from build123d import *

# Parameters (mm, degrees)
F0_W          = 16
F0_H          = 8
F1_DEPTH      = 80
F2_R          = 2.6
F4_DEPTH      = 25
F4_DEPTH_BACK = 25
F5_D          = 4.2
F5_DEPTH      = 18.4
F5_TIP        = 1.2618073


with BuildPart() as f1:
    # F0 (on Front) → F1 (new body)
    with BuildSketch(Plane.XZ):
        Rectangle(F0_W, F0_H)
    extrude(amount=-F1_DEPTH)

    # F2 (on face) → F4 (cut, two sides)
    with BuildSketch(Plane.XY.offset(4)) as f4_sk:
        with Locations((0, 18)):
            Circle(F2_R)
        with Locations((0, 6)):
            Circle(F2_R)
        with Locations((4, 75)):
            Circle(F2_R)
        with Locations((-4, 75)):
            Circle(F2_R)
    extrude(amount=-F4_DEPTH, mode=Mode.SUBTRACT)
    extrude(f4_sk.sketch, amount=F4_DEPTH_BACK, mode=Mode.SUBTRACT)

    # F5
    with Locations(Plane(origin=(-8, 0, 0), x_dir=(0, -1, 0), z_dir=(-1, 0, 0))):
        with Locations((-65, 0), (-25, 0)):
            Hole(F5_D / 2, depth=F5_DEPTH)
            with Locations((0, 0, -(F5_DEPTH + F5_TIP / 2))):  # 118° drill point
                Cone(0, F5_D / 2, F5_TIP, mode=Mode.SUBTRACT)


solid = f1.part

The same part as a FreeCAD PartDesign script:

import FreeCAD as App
import Part
import Sketcher


def add_polygon(sketch, points):
    """Adds a closed chain of lines whose ends are joined by coincident constraints."""
    first, n = sketch.GeometryCount, len(points)
    for a, b in zip(points, points[1:] + points[:1]):
        sketch.addGeometry(Part.LineSegment(App.Vector(*a, 0), App.Vector(*b, 0)), False)
    for i in range(n):
        sketch.addConstraint(Sketcher.Constraint("Coincident", first + i, 2, first + (i + 1) % n, 1))

doc = App.newDocument("Part")
body = doc.addObject("PartDesign::Body", "Body")

# Sketch on XZ plane
sketch1 = body.newObject("Sketcher::SketchObject", "Sketch")
sketch1.AttachmentSupport = (doc.getObject("XZ_Plane"), [""])
sketch1.MapMode = "FlatFace"
add_polygon(sketch1, [(-8, 4), (-8, -4), (8, -4), (8, 4)])  # lines 0-3
sketch1.addConstraint(Sketcher.Constraint("Vertical", 0))
sketch1.addConstraint(Sketcher.Constraint("Horizontal", 1))
sketch1.addConstraint(Sketcher.Constraint("Vertical", 2))
sketch1.addConstraint(Sketcher.Constraint("Horizontal", 3))
sketch1.addConstraint(Sketcher.Constraint("Symmetric", 0, 2, 2, 2, -1, 1))
sketch1.addConstraint(Sketcher.Constraint("DistanceX", 1, 1, 1, 2, 16.0))
sketch1.addConstraint(Sketcher.Constraint("DistanceY", 0, 2, 0, 1, 8.0))
pad1 = body.newObject("PartDesign::Pad", "Pad")
pad1.Profile = sketch1
pad1.Length = 80
pad1.Reversed = True

# Sketch on XY plane
sketch2 = body.newObject("Sketcher::SketchObject", "Sketch001")
sketch2.AttachmentSupport = (doc.getObject("XY_Plane"), [""])
sketch2.MapMode = "FlatFace"
sketch2.AttachmentOffset = App.Placement(App.Vector(0, 0, 4), App.Rotation())
sketch2.addGeometry(Part.Circle(App.Vector(0, 18, 0), App.Vector(0, 0, 1), 2.6), False)
sketch2.addGeometry(Part.Circle(App.Vector(0, 6, 0), App.Vector(0, 0, 1), 2.6), False)
sketch2.addGeometry(Part.Circle(App.Vector(4, 75, 0), App.Vector(0, 0, 1), 2.6), False)
sketch2.addGeometry(Part.Circle(App.Vector(-4, 75, 0), App.Vector(0, 0, 1), 2.6), False)
sketch2.addConstraint(Sketcher.Constraint("Equal", 0, 1))
sketch2.addConstraint(Sketcher.Constraint("Equal", 1, 2))
sketch2.addConstraint(Sketcher.Constraint("Equal", 2, 3))
sketch2.addConstraint(Sketcher.Constraint("Symmetric", 2, 3, 3, 3, -2))
sketch2.addConstraint(Sketcher.Constraint("PointOnObject", 0, 3, -2))
sketch2.addConstraint(Sketcher.Constraint("PointOnObject", 1, 3, -2))
sketch2.addConstraint(Sketcher.Constraint("Diameter", 0, 5.2))
sketch2.addConstraint(Sketcher.Constraint("DistanceY", -1, 1, 0, 3, 18.0))
sketch2.addConstraint(Sketcher.Constraint("DistanceY", -1, 1, 1, 3, 6.0))
sketch2.addConstraint(Sketcher.Constraint("DistanceX", -1, 1, 2, 3, 4.0))
sketch2.addConstraint(Sketcher.Constraint("DistanceY", -1, 1, 2, 3, 75.0))
pocket1 = body.newObject("PartDesign::Pocket", "Pocket")
pocket1.Profile = sketch2
pocket1.Type = "ThroughAll"
pocket1.Midplane = True

# Sketch on YZ plane
sketch3 = body.newObject("Sketcher::SketchObject", "Sketch002")
sketch3.AttachmentSupport = (doc.getObject("YZ_Plane"), [""])
sketch3.MapMode = "FlatFace"
sketch3.AttachmentOffset = App.Placement(App.Vector(0, 0, -8), App.Rotation())
sketch3.addGeometry(Part.Circle(App.Vector(65, 0, 0), App.Vector(0, 0, 1), 2.1), False)
sketch3.addGeometry(Part.Circle(App.Vector(25, 0, 0), App.Vector(0, 0, 1), 2.1), False)
sketch3.addConstraint(Sketcher.Constraint("Equal", 0, 1))
sketch3.addConstraint(Sketcher.Constraint("PointOnObject", 0, 3, -1))
sketch3.addConstraint(Sketcher.Constraint("PointOnObject", 1, 3, -1))
sketch3.addConstraint(Sketcher.Constraint("Diameter", 0, 4.2))
sketch3.addConstraint(Sketcher.Constraint("DistanceX", -1, 1, 0, 3, 65.0))
sketch3.addConstraint(Sketcher.Constraint("DistanceX", -1, 1, 1, 3, 25.0))
doc.recompute()
hole = body.newObject("PartDesign::Hole", "Hole")
hole.Profile = sketch3
hole.ThreadType = "None"
hole.Diameter = 4.2
hole.DepthType = "Dimension"
hole.Depth = 18.4
hole.DrillPoint = "Angled"
hole.DrillPointAngle = 118
hole.Reversed = True

doc.recompute()
